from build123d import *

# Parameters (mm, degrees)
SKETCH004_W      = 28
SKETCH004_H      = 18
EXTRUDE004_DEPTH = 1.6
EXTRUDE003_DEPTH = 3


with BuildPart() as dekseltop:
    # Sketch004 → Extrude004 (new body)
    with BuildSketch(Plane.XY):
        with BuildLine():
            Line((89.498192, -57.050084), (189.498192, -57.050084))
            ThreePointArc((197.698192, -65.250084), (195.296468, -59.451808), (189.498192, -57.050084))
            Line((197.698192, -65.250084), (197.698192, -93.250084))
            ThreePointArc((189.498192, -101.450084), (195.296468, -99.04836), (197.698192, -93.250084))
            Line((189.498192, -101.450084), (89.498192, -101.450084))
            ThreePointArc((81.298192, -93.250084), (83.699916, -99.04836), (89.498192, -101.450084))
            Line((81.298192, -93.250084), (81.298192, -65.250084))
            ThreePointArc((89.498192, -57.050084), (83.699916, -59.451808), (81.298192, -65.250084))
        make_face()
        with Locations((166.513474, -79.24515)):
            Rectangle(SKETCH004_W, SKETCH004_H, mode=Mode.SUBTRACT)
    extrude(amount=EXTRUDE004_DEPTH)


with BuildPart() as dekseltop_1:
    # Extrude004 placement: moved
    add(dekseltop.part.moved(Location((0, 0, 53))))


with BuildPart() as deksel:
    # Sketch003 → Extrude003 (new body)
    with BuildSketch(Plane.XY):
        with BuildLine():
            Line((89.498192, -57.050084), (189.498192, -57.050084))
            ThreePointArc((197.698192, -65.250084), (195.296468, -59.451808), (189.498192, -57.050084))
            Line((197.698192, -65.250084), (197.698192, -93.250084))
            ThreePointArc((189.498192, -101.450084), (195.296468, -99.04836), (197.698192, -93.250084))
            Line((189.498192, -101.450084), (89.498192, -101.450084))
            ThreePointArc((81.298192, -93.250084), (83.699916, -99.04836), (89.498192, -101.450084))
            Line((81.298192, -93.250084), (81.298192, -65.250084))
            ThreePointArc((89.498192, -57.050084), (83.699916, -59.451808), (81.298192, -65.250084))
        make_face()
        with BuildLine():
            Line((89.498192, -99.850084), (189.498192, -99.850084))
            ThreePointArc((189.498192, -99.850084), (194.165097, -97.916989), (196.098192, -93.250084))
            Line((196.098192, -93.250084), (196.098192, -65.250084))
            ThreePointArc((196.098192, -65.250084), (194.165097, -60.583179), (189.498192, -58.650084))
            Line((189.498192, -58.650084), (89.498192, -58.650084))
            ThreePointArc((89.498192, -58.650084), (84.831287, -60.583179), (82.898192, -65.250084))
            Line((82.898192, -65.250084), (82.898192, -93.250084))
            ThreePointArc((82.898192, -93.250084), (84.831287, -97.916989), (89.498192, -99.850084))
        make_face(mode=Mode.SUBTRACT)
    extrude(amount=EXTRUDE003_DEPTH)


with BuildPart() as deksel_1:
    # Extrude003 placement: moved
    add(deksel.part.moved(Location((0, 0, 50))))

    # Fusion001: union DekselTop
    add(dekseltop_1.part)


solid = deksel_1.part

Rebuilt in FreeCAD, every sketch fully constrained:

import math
import FreeCAD as App
import Part
import Sketcher

doc = App.newDocument("Part")
body = doc.addObject("PartDesign::Body", "Body")

sketch1 = body.newObject("Sketcher::SketchObject", "Sketch")
sketch1.AttachmentSupport = (doc.getObject("XY_Plane"), [""])
sketch1.MapMode = "FlatFace"
sketch1.addGeometry(Part.LineSegment(App.Vector(189, -57, 0), App.Vector(89, -57, 0)), False)
sketch1.addGeometry(Part.ArcOfCircle(Part.Circle(App.Vector(89, -65, 0), App.Vector(0, 0, 1), 8), math.radians(90), math.radians(180)), False)
sketch1.addGeometry(Part.LineSegment(App.Vector(81, -65, 0), App.Vector(81, -93, 0)), False)
sketch1.addGeometry(Part.ArcOfCircle(Part.Circle(App.Vector(89, -93, 0), App.Vector(0, 0, 1), 8), math.radians(180), math.radians(270)), False)
sketch1.addGeometry(Part.LineSegment(App.Vector(89, -101, 0), App.Vector(189, -101, 0)), False)
sketch1.addGeometry(Part.ArcOfCircle(Part.Circle(App.Vector(189, -93, 0), App.Vector(0, 0, 1), 8), math.radians(-90), math.radians(0)), False)
sketch1.addGeometry(Part.LineSegment(App.Vector(198, -93, 0), App.Vector(198, -65, 0)), False)
sketch1.addGeometry(Part.ArcOfCircle(Part.Circle(App.Vector(189, -65, 0), App.Vector(0, 0, 1), 8), math.radians(0), math.radians(90)), False)
sketch1.addGeometry(Part.LineSegment(App.Vector(153, -88, 0), App.Vector(153, -70, 0)), False)
sketch1.addGeometry(Part.LineSegment(App.Vector(153, -70, 0), App.Vector(181, -70, 0)), False)
sketch1.addGeometry(Part.LineSegment(App.Vector(181, -70, 0), App.Vector(181, -88, 0)), False)
sketch1.addGeometry(Part.LineSegment(App.Vector(181, -88, 0), App.Vector(153, -88, 0)), False)
sketch1.addConstraint(Sketcher.Constraint("Tangent", 0, 2, 1, 1))
sketch1.addConstraint(Sketcher.Constraint("Tangent", 1, 2, 2, 1))
sketch1.addConstraint(Sketcher.Constraint("Tangent", 2, 2, 3, 1))
sketch1.addConstraint(Sketcher.Constraint("Tangent", 3, 2, 4, 1))
sketch1.addConstraint(Sketcher.Constraint("Tangent", 4, 2, 5, 1))
sketch1.addConstraint(Sketcher.Constraint("Tangent", 5, 2, 6, 1))
sketch1.addConstraint(Sketcher.Constraint("Tangent", 6, 2, 7, 1))
sketch1.addConstraint(Sketcher.Constraint("Tangent", 7, 2, 0, 1))
sketch1.addConstraint(Sketcher.Constraint("Coincident", 8, 2, 9, 1))
sketch1.addConstraint(Sketcher.Constraint("Coincident", 9, 2, 10, 1))
sketch1.addConstraint(Sketcher.Constraint("Coincident", 10, 2, 11, 1))
sketch1.addConstraint(Sketcher.Constraint("Coincident", 11, 2, 8, 1))
sketch1.addConstraint(Sketcher.Constraint("Horizontal", 0))
sketch1.addConstraint(Sketcher.Constraint("Vertical", 2))
sketch1.addConstraint(Sketcher.Constraint("Horizontal", 4))
sketch1.addConstraint(Sketcher.Constraint("Vertical", 6))
sketch1.addConstraint(Sketcher.Constraint("Vertical", 8))
sketch1.addConstraint(Sketcher.Constraint("Horizontal", 9))
sketch1.addConstraint(Sketcher.Constraint("Vertical", 10))
sketch1.addConstraint(Sketcher.Constraint("Horizontal", 11))
sketch1.addConstraint(Sketcher.Constraint("Equal", 1, 3))
sketch1.addConstraint(Sketcher.Constraint("Equal", 3, 5))
sketch1.addConstraint(Sketcher.Constraint("Equal", 5, 7))
sketch1.addConstraint(Sketcher.Constraint("Equal", 11, 2))
sketch1.addConstraint(Sketcher.Constraint("Radius", 1, 8.199999))
sketch1.addConstraint(Sketcher.Constraint("DistanceX", 0, 2, 0, 1, 100.0))
sketch1.addConstraint(Sketcher.Constraint("DistanceX", 9, 1, 9, 2, 28.0))
sketch1.addConstraint(Sketcher.Constraint("DistanceY", 8, 1, 8, 2, 18.0))
sketch1.addConstraint(Sketcher.Constraint("DistanceX", -1, 1, 1, 3, 89.498191))
sketch1.addConstraint(Sketcher.Constraint("DistanceY", 8, 2, -1, 1, 70.24515))
sketch1.addConstraint(Sketcher.Constraint("DistanceX", 8, 2, 7, 3, 36.984719))
sketch1.addConstraint(Sketcher.Constraint("DistanceY", 1, 3, -1, 1, 65.250083))
pad1 = body.newObject("PartDesign::Pad", "Pad")
pad1.Profile = sketch1
pad1.Length = 1.6
body2 = doc.addObject("PartDesign::Body", "Body001")
doc.recompute()

body.Placement = App.Placement(App.Vector(0, 0, 53), App.Rotation(App.Vector(0, 0, 1), 0))
boolean = body2.newObject("PartDesign::Boolean", "Boolean")
boolean.Type = "Fuse"
boolean.addObjects([body])
body3 = doc.addObject("PartDesign::Body", "Body002")

sketch2 = body3.newObject("Sketcher::SketchObject", "Sketch001")
sketch2.AttachmentSupport = (doc.getObject("XY_Plane002"), [""])
sketch2.MapMode = "FlatFace"
sketch2.addGeometry(Part.LineSegment(App.Vector(189, -57, 0), App.Vector(89, -57, 0)), False)
sketch2.addGeometry(Part.ArcOfCircle(Part.Circle(App.Vector(89, -65, 0), App.Vector(0, 0, 1), 8), math.radians(90), math.radians(180)), False)
sketch2.addGeometry(Part.LineSegment(App.Vector(81, -65, 0), App.Vector(81, -93, 0)), False)
sketch2.addGeometry(Part.ArcOfCircle(Part.Circle(App.Vector(89, -93, 0), App.Vector(0, 0, 1), 8), math.radians(180), math.radians(270)), False)
sketch2.addGeometry(Part.LineSegment(App.Vector(89, -101, 0), App.Vector(189, -101, 0)), False)
sketch2.addGeometry(Part.ArcOfCircle(Part.Circle(App.Vector(189, -93, 0), App.Vector(0, 0, 1), 8), math.radians(-90), math.radians(0)), False)
sketch2.addGeometry(Part.LineSegment(App.Vector(198, -93, 0), App.Vector(198, -65, 0)), False)
sketch2.addGeometry(Part.ArcOfCircle(Part.Circle(App.Vector(189, -65, 0), App.Vector(0, 0, 1), 8), math.radians(0), math.radians(90)), False)
sketch2.addGeometry(Part.ArcOfCircle(Part.Circle(App.Vector(89, -93, 0), App.Vector(0, 0, 1), 7), math.radians(180), math.radians(270)), False)
sketch2.addGeometry(Part.LineSegment(App.Vector(83, -93, 0), App.Vector(83, -65, 0)), False)
sketch2.addGeometry(Part.ArcOfCircle(Part.Circle(App.Vector(89, -65, 0), App.Vector(0, 0, 1), 7), math.radians(90), math.radians(180)), False)
sketch2.addGeometry(Part.LineSegment(App.Vector(89, -59, 0), App.Vector(189, -59, 0)), False)
sketch2.addGeometry(Part.ArcOfCircle(Part.Circle(App.Vector(189, -65, 0), App.Vector(0, 0, 1), 7), math.radians(0), math.radians(90)), False)
sketch2.addGeometry(Part.LineSegment(App.Vector(196, -65, 0), App.Vector(196, -93, 0)), False)
sketch2.addGeometry(Part.ArcOfCircle(Part.Circle(App.Vector(189, -93, 0), App.Vector(0, 0, 1), 7), math.radians(-90), math.radians(0)), False)
sketch2.addGeometry(Part.LineSegment(App.Vector(189, -100, 0), App.Vector(89, -100, 0)), False)
sketch2.addConstraint(Sketcher.Constraint("Tangent", 0, 2, 1, 1))
sketch2.addConstraint(Sketcher.Constraint("Tangent", 1, 2, 2, 1))
sketch2.addConstraint(Sketcher.Constraint("Tangent", 2, 2, 3, 1))
sketch2.addConstraint(Sketcher.Constraint("Tangent", 3, 2, 4, 1))
sketch2.addConstraint(Sketcher.Constraint("Tangent", 4, 2, 5, 1))
sketch2.addConstraint(Sketcher.Constraint("Tangent", 5, 2, 6, 1))
sketch2.addConstraint(Sketcher.Constraint("Tangent", 6, 2, 7, 1))
sketch2.addConstraint(Sketcher.Constraint("Tangent", 7, 2, 0, 1))
sketch2.addConstraint(Sketcher.Constraint("Tangent", 8, 1, 9, 1))
sketch2.addConstraint(Sketcher.Constraint("Tangent", 9, 2, 10, 2))
sketch2.addConstraint(Sketcher.Constraint("Tangent", 10, 1, 11, 1))
sketch2.addConstraint(Sketcher.Constraint("Tangent", 11, 2, 12, 2))
sketch2.addConstraint(Sketcher.Constraint("Tangent", 12, 1, 13, 1))
sketch2.addConstraint(Sketcher.Constraint("Tangent", 13, 2, 14, 2))
sketch2.addConstraint(Sketcher.Constraint("Tangent", 14, 1, 15, 1))
sketch2.addConstraint(Sketcher.Constraint("Tangent", 15, 2, 8, 2))
sketch2.addConstraint(Sketcher.Constraint("Horizontal", 0))
sketch2.addConstraint(Sketcher.Constraint("Vertical", 2))
sketch2.addConstraint(Sketcher.Constraint("Horizontal", 4))
sketch2.addConstraint(Sketcher.Constraint("Vertical", 6))
sketch2.addConstraint(Sketcher.Constraint("Vertical", 9))
sketch2.addConstraint(Sketcher.Constraint("Horizontal", 11))
sketch2.addConstraint(Sketcher.Constraint("Vertical", 13))
sketch2.addConstraint(Sketcher.Constraint("Horizontal", 15))
sketch2.addConstraint(Sketcher.Constraint("Coincident", 8, 3, 3, 3))
sketch2.addConstraint(Sketcher.Constraint("Coincident", 10, 3, 1, 3))
sketch2.addConstraint(Sketcher.Constraint("Coincident", 12, 3, 7, 3))
sketch2.addConstraint(Sketcher.Constraint("Equal", 1, 3))
sketch2.addConstraint(Sketcher.Constraint("Equal", 3, 5))
sketch2.addConstraint(Sketcher.Constraint("Equal", 5, 7))
sketch2.addConstraint(Sketcher.Constraint("Equal", 12, 14))
sketch2.addConstraint(Sketcher.Constraint("Radius", 1, 8.199999))
sketch2.addConstraint(Sketcher.Constraint("Radius", 8, 6.599999))
sketch2.addConstraint(Sketcher.Constraint("DistanceX", 0, 2, 0, 1, 100.0))
sketch2.addConstraint(Sketcher.Constraint("DistanceY", 2, 2, 2, 1, 28.0))
sketch2.addConstraint(Sketcher.Constraint("DistanceX", -1, 1, 1, 3, 89.498191))
sketch2.addConstraint(Sketcher.Constraint("DistanceY", 1, 3, -1, 1, 65.250083))
pad2 = body3.newObject("PartDesign::Pad", "Pad001")
pad2.Profile = sketch2
pad2.Length = 3
body4 = doc.addObject("PartDesign::Body", "Body003")
doc.recompute()

body3.Placement = App.Placement(App.Vector(0, 0, 50), App.Rotation(App.Vector(0, 0, 1), 0))
boolean2 = body4.newObject("PartDesign::Boolean", "Boolean001")
boolean2.Type = "Fuse"
boolean2.addObjects([body3])
doc.recompute()

boolean3 = body4.newObject("PartDesign::Boolean", "Boolean002")
boolean3.Type = "Fuse"
boolean3.addObjects([body2])

doc.recompute()
